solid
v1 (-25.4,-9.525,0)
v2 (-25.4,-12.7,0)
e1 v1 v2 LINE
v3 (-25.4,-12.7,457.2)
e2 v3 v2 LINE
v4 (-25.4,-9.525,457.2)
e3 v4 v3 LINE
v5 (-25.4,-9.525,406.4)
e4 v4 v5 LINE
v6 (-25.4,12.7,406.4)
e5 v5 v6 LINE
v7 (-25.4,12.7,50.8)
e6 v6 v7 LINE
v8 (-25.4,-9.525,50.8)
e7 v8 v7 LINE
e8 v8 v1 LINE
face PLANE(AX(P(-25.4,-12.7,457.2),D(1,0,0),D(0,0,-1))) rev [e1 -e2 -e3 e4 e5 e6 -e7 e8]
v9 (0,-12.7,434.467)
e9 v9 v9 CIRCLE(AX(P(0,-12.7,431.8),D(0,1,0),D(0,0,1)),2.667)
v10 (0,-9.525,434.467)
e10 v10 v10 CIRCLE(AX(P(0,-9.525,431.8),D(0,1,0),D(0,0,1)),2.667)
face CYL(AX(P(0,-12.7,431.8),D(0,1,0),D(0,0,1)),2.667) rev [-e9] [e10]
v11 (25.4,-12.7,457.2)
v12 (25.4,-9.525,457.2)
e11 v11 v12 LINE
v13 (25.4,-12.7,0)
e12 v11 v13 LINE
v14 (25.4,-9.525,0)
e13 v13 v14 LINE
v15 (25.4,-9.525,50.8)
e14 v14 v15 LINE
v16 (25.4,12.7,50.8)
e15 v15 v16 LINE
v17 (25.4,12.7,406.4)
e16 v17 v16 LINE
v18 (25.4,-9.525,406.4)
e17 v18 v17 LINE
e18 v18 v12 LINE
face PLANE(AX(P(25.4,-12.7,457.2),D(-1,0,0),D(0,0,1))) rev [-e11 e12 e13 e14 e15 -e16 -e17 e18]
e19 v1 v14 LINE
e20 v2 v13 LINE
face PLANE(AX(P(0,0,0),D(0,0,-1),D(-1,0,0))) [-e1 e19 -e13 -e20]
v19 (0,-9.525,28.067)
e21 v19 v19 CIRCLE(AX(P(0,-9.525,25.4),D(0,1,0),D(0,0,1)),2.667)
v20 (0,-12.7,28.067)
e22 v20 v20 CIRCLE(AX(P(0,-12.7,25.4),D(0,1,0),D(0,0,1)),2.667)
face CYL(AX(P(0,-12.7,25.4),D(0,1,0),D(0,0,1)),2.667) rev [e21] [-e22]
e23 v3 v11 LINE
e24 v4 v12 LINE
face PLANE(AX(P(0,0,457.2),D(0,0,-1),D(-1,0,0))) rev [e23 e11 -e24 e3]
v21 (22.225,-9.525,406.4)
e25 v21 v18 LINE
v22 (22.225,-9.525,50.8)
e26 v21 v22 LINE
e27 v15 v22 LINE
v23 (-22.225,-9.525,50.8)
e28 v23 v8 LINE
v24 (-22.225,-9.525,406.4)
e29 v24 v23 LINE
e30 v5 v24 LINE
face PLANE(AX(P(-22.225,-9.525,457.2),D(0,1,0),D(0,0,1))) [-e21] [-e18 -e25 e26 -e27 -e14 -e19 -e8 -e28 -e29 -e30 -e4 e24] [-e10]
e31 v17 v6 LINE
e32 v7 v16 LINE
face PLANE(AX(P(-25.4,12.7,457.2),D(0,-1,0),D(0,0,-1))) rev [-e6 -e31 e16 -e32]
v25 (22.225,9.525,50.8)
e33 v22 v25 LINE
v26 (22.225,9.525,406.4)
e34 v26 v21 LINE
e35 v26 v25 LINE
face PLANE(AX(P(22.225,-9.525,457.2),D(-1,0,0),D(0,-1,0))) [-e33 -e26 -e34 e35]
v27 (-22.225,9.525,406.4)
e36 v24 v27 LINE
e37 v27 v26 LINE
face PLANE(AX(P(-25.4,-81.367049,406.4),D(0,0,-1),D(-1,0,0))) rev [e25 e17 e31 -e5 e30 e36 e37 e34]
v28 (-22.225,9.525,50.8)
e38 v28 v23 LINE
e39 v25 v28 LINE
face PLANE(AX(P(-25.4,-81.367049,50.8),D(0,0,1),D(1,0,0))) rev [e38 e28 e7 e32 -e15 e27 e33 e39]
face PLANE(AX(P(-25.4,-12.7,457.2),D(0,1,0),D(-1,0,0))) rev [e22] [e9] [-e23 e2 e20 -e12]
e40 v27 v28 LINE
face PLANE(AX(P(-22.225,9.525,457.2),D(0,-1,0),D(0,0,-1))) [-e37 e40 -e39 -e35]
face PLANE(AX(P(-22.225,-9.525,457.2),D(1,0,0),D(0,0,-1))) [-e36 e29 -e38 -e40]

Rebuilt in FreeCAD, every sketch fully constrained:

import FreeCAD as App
import Part
import Sketcher
from FreeCAD import Vector
Q = App.Units.Quantity

doc = App.newDocument("Part")
body = doc.addObject("PartDesign::Body", "Body")

sketch1 = body.newObject("Sketcher::SketchObject", "Sketch")
sketch1.AttachmentSupport = (doc.getObject("XY_Plane"), [""])
sketch1.MapMode = "FlatFace"
sketch1.addGeometry([
    Part.LineSegment(Vector(-25, 13, 0), Vector(-25, -13, 0)),
    Part.LineSegment(Vector(-25, -13, 0), Vector(25, -13, 0)),
    Part.LineSegment(Vector(25, -13, 0), Vector(25, 13, 0)),
    Part.LineSegment(Vector(25, 13, 0), Vector(-25, 13, 0)),
    Part.LineSegment(Vector(22, -10, 0), Vector(-22, -10, 0)),
    Part.LineSegment(Vector(-22, -10, 0), Vector(-22, 10, 0)),
    Part.LineSegment(Vector(-22, 10, 0), Vector(22, 10, 0)),
    Part.LineSegment(Vector(22, 10, 0), Vector(22, -10, 0)),
], False)
sketch1.addConstraint([
    Sketcher.Constraint("Coincident", 0, 2, 1, 1),
    Sketcher.Constraint("Coincident", 1, 2, 2, 1),
    Sketcher.Constraint("Coincident", 2, 2, 3, 1),
    Sketcher.Constraint("Coincident", 3, 2, 0, 1),
    Sketcher.Constraint("Coincident", 4, 2, 5, 1),
    Sketcher.Constraint("Coincident", 5, 2, 6, 1),
    Sketcher.Constraint("Coincident", 6, 2, 7, 1),
    Sketcher.Constraint("Coincident", 7, 2, 4, 1),
    Sketcher.Constraint("Vertical", 0),
    Sketcher.Constraint("Horizontal", 1),
    Sketcher.Constraint("Vertical", 2),
    Sketcher.Constraint("Horizontal", 3),
    Sketcher.Constraint("Horizontal", 4),
    Sketcher.Constraint("Vertical", 5),
    Sketcher.Constraint("Horizontal", 6),
    Sketcher.Constraint("Vertical", 7),
    Sketcher.Constraint("Symmetric", 0, 2, 2, 2, -1, 1),
    Sketcher.Constraint("Symmetric", 4, 2, 6, 2, -1, 1),
    Sketcher.Constraint("DistanceX", 1, 1, 1, 2, Q("2 in")),
    Sketcher.Constraint("DistanceY", 0, 2, 0, 1, Q("1 in")),
    Sketcher.Constraint("DistanceX", 4, 2, 4, 1, Q("1.75 in")),
    Sketcher.Constraint("DistanceY", 5, 1, 5, 2, Q("0.75 in")),
])
pad1 = body.newObject("PartDesign::Pad", "Pad")
pad1.Profile = sketch1
pad1.Length = Q("18 in")

sketch2 = body.newObject("Sketcher::SketchObject", "Sketch001")
sketch2.AttachmentSupport = (doc.getObject("XZ_Plane"), [""])
sketch2.MapMode = "FlatFace"
sketch2.AttachmentOffset = App.Placement(Vector(0, 0, -0.5 * 25.4), App.Rotation())
sketch2.addGeometry([
    Part.Circle(Vector(0, 431.8, 0), Vector(0, 0, 1), 2.7),
    Part.Circle(Vector(0, 25.4, 0), Vector(0, 0, 1), 2.7),
], False)
sketch2.addConstraint([
    Sketcher.Constraint("Equal", 0, 1),
    Sketcher.Constraint("PointOnObject", 0, 3, -2),
    Sketcher.Constraint("PointOnObject", 1, 3, -2),
    Sketcher.Constraint("Diameter", 0, Q("0.21 in")),
    Sketcher.Constraint("DistanceY", -1, 1, 0, 3, Q("17 in")),
    Sketcher.Constraint("DistanceY", -1, 1, 1, 3, Q("1 in")),
])
pocket1 = body.newObject("PartDesign::Pocket", "Pocket")
pocket1.Profile = sketch2
pocket1.Type = "ThroughAll"
pocket1.Reversed = True

sketch3 = body.newObject("Sketcher::SketchObject", "Sketch002")
sketch3.AttachmentSupport = (doc.getObject("XZ_Plane"), [""])
sketch3.MapMode = "FlatFace"
sketch3.AttachmentOffset = App.Placement(Vector(0, 0, -0.5 * 25.4), App.Rotation())
sketch3.addGeometry([
    Part.LineSegment(Vector(-25, 406, 0), Vector(-25, 457, 0)),
    Part.LineSegment(Vector(-25, 457, 0), Vector(25, 457, 0)),
    Part.LineSegment(Vector(25, 457, 0), Vector(25, 406, 0)),
    Part.LineSegment(Vector(25, 406, 0), Vector(-25, 406, 0)),
    Part.LineSegment(Vector(-25, 0, 0), Vector(-25, 51, 0)),
    Part.LineSegment(Vector(-25, 51, 0), Vector(25, 51, 0)),
    Part.LineSegment(Vector(25, 51, 0), Vector(25, 0, 0)),
    Part.LineSegment(Vector(25, 0, 0), Vector(-25, 0, 0)),
], False)
sketch3.addConstraint([
    Sketcher.Constraint("Coincident", 0, 2, 1, 1),
    Sketcher.Constraint("Coincident", 1, 2, 2, 1),
    Sketcher.Constraint("Coincident", 2, 2, 3, 1),
    Sketcher.Constraint("Coincident", 3, 2, 0, 1),
    Sketcher.Constraint("Coincident", 4, 2, 5, 1),
    Sketcher.Constraint("Coincident", 5, 2, 6, 1),
    Sketcher.Constraint("Coincident", 6, 2, 7, 1),
    Sketcher.Constraint("Coincident", 7, 2, 4, 1),
    Sketcher.Constraint("Vertical", 0),
    Sketcher.Constraint("Horizontal", 1),
    Sketcher.Constraint("Vertical", 2),
    Sketcher.Constraint("Horizontal", 3),
    Sketcher.Constraint("Vertical", 4),
    Sketcher.Constraint("Horizontal", 5),
    Sketcher.Constraint("Vertical", 6),
    Sketcher.Constraint("Horizontal", 7),
    Sketcher.Constraint("Symmetric", 6, 2, 7, 2, -1, 1),
    Sketcher.Constraint("Vertical", 3, 2, 4, 2),
    Sketcher.Constraint("Vertical", 2, 2, 5, 2),
    Sketcher.Constraint("Equal", 7, 0),
    Sketcher.Constraint("Equal", 2, 4),
    Sketcher.Constraint("DistanceX", 1, 1, 1, 2, Q("2 in")),
    Sketcher.Constraint("DistanceY", -1, 1, 0, 2, Q("18 in")),
])
pocket2 = body.newObject("PartDesign::Pocket", "Pocket001")
pocket2.Profile = sketch3
pocket2.Length = Q("0.875 in")
pocket2.Reversed = True

doc.recompute()
